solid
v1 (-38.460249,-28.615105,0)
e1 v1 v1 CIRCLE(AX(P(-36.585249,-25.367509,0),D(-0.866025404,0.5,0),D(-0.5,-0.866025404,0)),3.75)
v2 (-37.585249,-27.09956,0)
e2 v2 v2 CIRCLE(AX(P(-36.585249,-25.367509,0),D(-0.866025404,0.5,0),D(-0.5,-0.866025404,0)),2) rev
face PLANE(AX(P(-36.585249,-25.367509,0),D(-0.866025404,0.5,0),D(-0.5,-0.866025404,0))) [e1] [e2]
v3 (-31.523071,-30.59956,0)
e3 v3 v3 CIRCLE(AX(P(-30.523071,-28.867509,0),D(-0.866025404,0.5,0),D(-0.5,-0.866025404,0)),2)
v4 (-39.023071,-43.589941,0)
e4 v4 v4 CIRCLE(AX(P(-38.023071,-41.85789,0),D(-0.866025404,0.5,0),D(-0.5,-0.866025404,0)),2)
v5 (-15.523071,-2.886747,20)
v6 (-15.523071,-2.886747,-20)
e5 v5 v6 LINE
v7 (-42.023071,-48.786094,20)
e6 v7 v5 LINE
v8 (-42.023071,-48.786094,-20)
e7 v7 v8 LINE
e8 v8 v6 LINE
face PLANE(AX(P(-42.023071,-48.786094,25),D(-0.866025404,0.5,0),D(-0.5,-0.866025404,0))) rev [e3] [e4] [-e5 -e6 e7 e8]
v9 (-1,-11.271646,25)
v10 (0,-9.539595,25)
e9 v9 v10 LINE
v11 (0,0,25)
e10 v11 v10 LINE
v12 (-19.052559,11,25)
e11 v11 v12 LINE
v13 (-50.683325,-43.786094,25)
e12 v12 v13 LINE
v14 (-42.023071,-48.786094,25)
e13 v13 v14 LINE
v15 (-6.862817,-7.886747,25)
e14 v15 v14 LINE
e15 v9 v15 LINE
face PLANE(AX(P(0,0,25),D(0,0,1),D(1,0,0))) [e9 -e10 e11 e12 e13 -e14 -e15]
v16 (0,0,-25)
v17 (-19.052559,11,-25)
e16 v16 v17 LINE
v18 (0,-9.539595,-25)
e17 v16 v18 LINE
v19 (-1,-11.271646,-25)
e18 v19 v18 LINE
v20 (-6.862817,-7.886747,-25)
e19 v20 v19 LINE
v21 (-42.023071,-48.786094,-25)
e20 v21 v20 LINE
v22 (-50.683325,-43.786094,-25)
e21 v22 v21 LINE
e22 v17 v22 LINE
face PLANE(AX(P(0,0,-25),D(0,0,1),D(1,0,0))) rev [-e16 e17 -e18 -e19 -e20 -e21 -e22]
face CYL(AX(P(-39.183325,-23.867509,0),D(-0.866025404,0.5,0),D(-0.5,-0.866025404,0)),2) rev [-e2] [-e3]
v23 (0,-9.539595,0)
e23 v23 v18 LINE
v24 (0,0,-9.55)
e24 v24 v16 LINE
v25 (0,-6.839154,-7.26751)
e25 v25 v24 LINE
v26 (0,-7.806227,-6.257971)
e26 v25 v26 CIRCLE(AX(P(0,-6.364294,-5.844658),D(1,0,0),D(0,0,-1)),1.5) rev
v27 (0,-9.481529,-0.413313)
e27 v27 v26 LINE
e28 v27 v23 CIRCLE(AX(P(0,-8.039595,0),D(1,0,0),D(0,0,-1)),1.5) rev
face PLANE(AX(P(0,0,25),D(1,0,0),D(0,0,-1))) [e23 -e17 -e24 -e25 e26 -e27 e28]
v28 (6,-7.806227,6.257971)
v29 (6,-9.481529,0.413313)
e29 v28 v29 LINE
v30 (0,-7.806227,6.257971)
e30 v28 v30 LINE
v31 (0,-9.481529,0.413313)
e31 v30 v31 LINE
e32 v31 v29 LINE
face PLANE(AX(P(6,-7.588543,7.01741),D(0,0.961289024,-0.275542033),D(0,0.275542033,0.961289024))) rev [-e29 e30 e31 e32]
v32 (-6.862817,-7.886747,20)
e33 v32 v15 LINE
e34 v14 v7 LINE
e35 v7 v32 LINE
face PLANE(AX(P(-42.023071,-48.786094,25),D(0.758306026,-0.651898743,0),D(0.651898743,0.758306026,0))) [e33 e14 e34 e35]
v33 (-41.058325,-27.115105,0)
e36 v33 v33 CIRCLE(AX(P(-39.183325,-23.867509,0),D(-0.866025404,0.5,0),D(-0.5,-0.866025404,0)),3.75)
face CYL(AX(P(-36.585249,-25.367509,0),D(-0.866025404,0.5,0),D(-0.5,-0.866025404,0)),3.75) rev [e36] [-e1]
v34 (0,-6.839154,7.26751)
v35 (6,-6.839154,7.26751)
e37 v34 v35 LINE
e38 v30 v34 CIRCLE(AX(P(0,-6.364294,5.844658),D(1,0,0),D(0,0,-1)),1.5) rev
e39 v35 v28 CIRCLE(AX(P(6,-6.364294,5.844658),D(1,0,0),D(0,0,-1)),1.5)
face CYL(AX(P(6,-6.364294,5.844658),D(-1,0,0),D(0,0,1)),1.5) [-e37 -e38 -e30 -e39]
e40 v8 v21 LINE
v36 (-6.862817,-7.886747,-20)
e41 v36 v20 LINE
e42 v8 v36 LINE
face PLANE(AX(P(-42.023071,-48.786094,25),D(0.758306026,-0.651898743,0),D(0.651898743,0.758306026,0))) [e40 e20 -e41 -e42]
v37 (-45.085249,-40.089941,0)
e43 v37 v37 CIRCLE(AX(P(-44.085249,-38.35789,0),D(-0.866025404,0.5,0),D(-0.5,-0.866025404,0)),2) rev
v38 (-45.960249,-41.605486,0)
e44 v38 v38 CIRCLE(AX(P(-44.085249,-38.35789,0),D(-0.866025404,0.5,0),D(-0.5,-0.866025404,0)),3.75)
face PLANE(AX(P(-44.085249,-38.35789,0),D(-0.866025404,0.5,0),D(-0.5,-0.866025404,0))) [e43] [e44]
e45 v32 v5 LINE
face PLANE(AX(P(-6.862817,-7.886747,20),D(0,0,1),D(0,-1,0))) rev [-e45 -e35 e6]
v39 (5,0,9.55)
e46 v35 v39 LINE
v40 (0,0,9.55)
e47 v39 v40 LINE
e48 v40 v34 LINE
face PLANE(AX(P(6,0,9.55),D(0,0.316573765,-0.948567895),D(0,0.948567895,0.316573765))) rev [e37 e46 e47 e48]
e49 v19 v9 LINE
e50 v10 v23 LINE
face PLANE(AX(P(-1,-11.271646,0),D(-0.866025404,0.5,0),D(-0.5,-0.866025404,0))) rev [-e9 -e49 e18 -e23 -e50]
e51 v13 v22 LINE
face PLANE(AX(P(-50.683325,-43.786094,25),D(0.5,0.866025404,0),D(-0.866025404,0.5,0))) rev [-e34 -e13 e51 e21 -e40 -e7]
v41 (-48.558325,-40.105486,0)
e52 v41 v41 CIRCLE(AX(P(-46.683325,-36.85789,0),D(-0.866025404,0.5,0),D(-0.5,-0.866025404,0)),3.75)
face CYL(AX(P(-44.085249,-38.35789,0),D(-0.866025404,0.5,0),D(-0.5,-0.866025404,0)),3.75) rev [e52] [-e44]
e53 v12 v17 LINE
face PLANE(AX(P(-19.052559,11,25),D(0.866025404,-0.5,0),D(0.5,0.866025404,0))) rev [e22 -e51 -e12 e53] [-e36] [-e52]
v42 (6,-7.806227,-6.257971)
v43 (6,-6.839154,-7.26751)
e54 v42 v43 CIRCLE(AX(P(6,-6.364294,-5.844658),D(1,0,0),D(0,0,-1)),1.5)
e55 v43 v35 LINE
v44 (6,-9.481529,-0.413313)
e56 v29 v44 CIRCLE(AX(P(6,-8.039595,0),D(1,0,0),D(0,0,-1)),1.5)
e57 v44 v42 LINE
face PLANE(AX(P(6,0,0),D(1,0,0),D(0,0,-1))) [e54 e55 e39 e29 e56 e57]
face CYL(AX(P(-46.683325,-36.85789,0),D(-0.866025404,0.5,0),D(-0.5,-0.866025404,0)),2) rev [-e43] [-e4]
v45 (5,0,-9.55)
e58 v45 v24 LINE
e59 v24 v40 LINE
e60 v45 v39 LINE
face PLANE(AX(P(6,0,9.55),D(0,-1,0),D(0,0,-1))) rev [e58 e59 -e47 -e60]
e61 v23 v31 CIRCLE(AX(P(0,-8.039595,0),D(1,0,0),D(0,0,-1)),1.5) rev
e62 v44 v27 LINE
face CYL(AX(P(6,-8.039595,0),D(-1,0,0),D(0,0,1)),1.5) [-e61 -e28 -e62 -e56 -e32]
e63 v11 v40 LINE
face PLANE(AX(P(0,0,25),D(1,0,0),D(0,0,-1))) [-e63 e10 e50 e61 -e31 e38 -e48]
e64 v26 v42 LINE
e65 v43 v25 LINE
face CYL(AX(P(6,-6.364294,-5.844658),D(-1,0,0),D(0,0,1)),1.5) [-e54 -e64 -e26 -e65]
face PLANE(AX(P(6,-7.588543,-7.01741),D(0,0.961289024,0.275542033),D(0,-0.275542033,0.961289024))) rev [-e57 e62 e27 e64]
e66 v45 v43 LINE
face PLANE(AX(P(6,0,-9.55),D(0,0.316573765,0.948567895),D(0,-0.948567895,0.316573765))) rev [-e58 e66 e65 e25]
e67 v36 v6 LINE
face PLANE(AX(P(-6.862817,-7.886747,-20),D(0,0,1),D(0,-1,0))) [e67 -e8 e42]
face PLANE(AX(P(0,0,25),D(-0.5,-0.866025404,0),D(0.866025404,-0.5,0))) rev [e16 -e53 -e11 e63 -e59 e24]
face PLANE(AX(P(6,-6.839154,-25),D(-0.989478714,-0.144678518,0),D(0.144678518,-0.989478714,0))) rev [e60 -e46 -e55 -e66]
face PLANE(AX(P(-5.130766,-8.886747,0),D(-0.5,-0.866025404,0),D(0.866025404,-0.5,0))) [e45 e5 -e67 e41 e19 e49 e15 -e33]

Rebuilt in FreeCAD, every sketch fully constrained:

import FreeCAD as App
import Part
import Sketcher
Q = App.Units.Quantity


def edges_at(feature, points):
    """Names of the edges that pass closest to the given points."""
    edges = feature.Shape.Edges
    near = lambda p: min(range(len(edges)), key=lambda i: edges[i].distToShape(Part.Vertex(*p))[0])
    return sorted({f"Edge{near(p) + 1}" for p in points})


def add_polygon(sketch, points):
    """Adds a closed chain of lines whose ends are joined by coincident constraints."""
    first, n = sketch.GeometryCount, len(points)
    for a, b in zip(points, points[1:] + points[:1]):
        sketch.addGeometry(Part.LineSegment(App.Vector(*a, 0), App.Vector(*b, 0)), False)
    for i in range(n):
        sketch.addConstraint(Sketcher.Constraint("Coincident", first + i, 2, first + (i + 1) % n, 1))

doc = App.newDocument("Part")
body = doc.addObject("PartDesign::Body", "Body")

sketch1 = body.newObject("Sketcher::SketchObject", "Sketch")
sketch1.AttachmentSupport = (doc.getObject("YZ_Plane"), [""])
sketch1.MapMode = "FlatFace"
add_polygon(sketch1, [(0, -9.55), (0, 9.55), (-7.588543, 7.01741), (-9.6, 0), (-7.588543, -7.01741)])
sketch1.addConstraint([
    Sketcher.Constraint("Vertical", 0),
    Sketcher.Constraint("Symmetric", 0, 2, 4, 2, -1, 1),
    Sketcher.Constraint("Symmetric", 1, 2, 3, 2, -1),
    Sketcher.Constraint("PointOnObject", 2, 2, -1),
    Sketcher.Constraint("Distance", 1, Q("8 mm")),
    Sketcher.Constraint("DistanceY", 0, 1, 0, 2, Q("19.1 mm")),
    Sketcher.Constraint("Distance", 2, Q("7.3 mm")),
    Sketcher.Constraint("DistanceX", 2, 2, -1, 1, Q("9.6 mm")),
])
pad1 = body.newObject("PartDesign::Pad", "Pad")
pad1.Profile = sketch1
pad1.Length = 6
doc.recompute()

fillet = body.newObject("PartDesign::Fillet", "Fillet")
fillet.Base = (pad1, edges_at(pad1, [(3, -7.589, -7.017), (3, -9.6, 0), (3, -7.589, 7.017)]))
fillet.Radius = 1.5

sketch2 = body.newObject("Sketcher::SketchObject", "Sketch001")
sketch2.AttachmentSupport = (doc.getObject("XY_Plane"), [""])
sketch2.MapMode = "FlatFace"
add_polygon(sketch2, [(0, 0), (-19.052559, 11), (-50.683325, -43.786094), (-42.023071, -48.786094), (-14.523071, -1.154696), (0, -9.539595)])
sketch2.addConstraint([
    Sketcher.Constraint("Vertical", 5),
    Sketcher.Constraint("Coincident", 5, 2, -1, 1),
    Sketcher.Constraint("Perpendicular", 0, 1),
    Sketcher.Constraint("Perpendicular", 1, 2),
    Sketcher.Constraint("Perpendicular", 2, 3),
    Sketcher.Constraint("Perpendicular", 3, 4),
    Sketcher.Constraint("Angle", 0, Q("150 deg")),
    Sketcher.Constraint("Distance", 0, Q("22 mm")),
    Sketcher.Constraint("Distance", 2, Q("10 mm")),
    Sketcher.Constraint("Distance", 3, Q("55 mm")),
    Sketcher.Constraint("DistanceY", 4, 2, 3, 2, Q("8.384899 mm")),
])
pad2 = body.newObject("PartDesign::Pad", "Pad001")
pad2.Profile = sketch2
pad2.Type = "TwoLengths"
pad2.Length = 25
pad2.Length2 = 25

sketch3 = body.newObject("Sketcher::SketchObject", "Sketch002")
sketch3.AttachmentSupport = (doc.getObject("XY_Plane"), [""])
sketch3.MapMode = "FlatFace"
sketch3.AttachmentOffset = App.Placement(App.Vector(0, 0, 25), App.Rotation())
add_polygon(sketch3, [(6, -6.839154), (6, 0), (5, 0)])
sketch3.addConstraint([
    Sketcher.Constraint("Vertical", 0),
    Sketcher.Constraint("Horizontal", 1),
    Sketcher.Constraint("PointOnObject", 0, 2, -1),
    Sketcher.Constraint("DistanceX", 1, 2, 1, 1, Q("1 mm")),
    Sketcher.Constraint("DistanceX", -1, 1, 0, 2, Q("6 mm")),
    Sketcher.Constraint("DistanceY", 0, 1, 0, 2, Q("6.839154 mm")),
])
pocket1 = body.newObject("PartDesign::Pocket", "Pocket")
pocket1.Profile = sketch3
pocket1.Type = "ThroughAll"

sketch4 = body.newObject("Sketcher::SketchObject", "Sketch003")
sketch4.Placement = App.Placement(App.Vector(-4.130766, -7.154696, 0), App.Rotation(App.Vector(0.866025404, -0.5, 0), App.Vector(0, 0, 1), App.Vector(-0.5, -0.866025404, 0), "ZXY"))
add_polygon(sketch4, [(-12, 25), (-12, -25), (4.769798, -25), (4.769798, 25)])
sketch4.addConstraint([
    Sketcher.Constraint("Vertical", 0),
    Sketcher.Constraint("Horizontal", 1),
    Sketcher.Constraint("Vertical", 2),
    Sketcher.Constraint("Horizontal", 3),
    Sketcher.Constraint("DistanceY", 0, 2, 0, 1, Q("50 mm")),
    Sketcher.Constraint("DistanceX", 0, 2, -1, 1, Q("12 mm")),
    Sketcher.Constraint("DistanceY", 0, 2, -1, 1, Q("25 mm")),
    Sketcher.Constraint("DistanceX", 1, 1, 1, 2, Q("16.769798 mm")),
])
pad3 = body.newObject("PartDesign::Pad", "Pad002")
pad3.Profile = sketch4
pad3.Length = 2

sketch5 = body.newObject("Sketcher::SketchObject", "Sketch004")
sketch5.Placement = App.Placement(App.Vector(-19.052559, 11, 0), App.Rotation(App.Vector(0, 0, 1), App.Vector(0.5, 0.866025404, 0), App.Vector(-0.866025404, 0.5, 0), "ZXY"))
sketch5.addGeometry([
    Part.Circle(App.Vector(0, -40.261532, 0), App.Vector(0, 0, 1), 2),
    Part.Circle(App.Vector(0, -55.261532, 0), App.Vector(0, 0, 1), 2),
], False)
sketch5.addConstraint([
    Sketcher.Constraint("Equal", 0, 1),
    Sketcher.Constraint("PointOnObject", 0, 3, -2),
    Sketcher.Constraint("PointOnObject", 1, 3, -2),
    Sketcher.Constraint("Diameter", 0, Q("4 mm")),
    Sketcher.Constraint("DistanceY", 1, 3, 0, 3, Q("15 mm")),
    Sketcher.Constraint("DistanceY", 0, 3, -1, 1, Q("40.261532 mm")),
])
doc.recompute()
hole = body.newObject("PartDesign::Hole", "Hole")
hole.Profile = sketch5
hole.ThreadType = "None"
hole.Diameter = 4
hole.DepthType = "ThroughAll"

sketch6 = body.newObject("Sketcher::SketchObject", "Sketch005")
sketch6.Placement = App.Placement(App.Vector(-19.052559, 11, 0), App.Rotation(App.Vector(-0.5, -0.866025404, 0), App.Vector(0, 0, 1), App.Vector(-0.866025404, 0.5, 0), "ZXY"))
sketch6.addGeometry([
    Part.Circle(App.Vector(40.261532, 0, 0), App.Vector(0, 0, 1), 3.75),
    Part.Circle(App.Vector(55.261532, 0, 0), App.Vector(0, 0, 1), 3.75),
], False)
sketch6.addConstraint([
    Sketcher.Constraint("Equal", 0, 1),
    Sketcher.Constraint("PointOnObject", 0, 3, -1),
    Sketcher.Constraint("PointOnObject", 1, 3, -1),
    Sketcher.Constraint("Diameter", 0, Q("7.5 mm")),
    Sketcher.Constraint("DistanceX", 0, 3, 1, 3, Q("15 mm")),
    Sketcher.Constraint("DistanceX", -1, 1, 0, 3, Q("40.261532 mm")),
])
pocket2 = body.newObject("PartDesign::Pocket", "Pocket001")
pocket2.Profile = sketch6
pocket2.Length = 3

sketch7 = body.newObject("Sketcher::SketchObject", "Sketch006")
sketch7.Placement = App.Placement(App.Vector(-10.392305, 6, 0), App.Rotation(App.Vector(0, 0, -1), App.Vector(0.5, 0.866025404, 0), App.Vector(0.866025404, -0.5, 0), "ZXY"))
add_polygon(sketch7, [(-25, -10.261532), (-25, -63.261532), (-20, -63.261532), (-20, -10.261532)])
sketch7.addConstraint([
    Sketcher.Constraint("Vertical", 0),
    Sketcher.Constraint("Horizontal", 1),
    Sketcher.Constraint("Vertical", 2),
    Sketcher.Constraint("Horizontal", 3),
    Sketcher.Constraint("DistanceX", 1, 1, 1, 2, Q("5 mm")),
    Sketcher.Constraint("DistanceY", 0, 2, 0, 1, Q("53 mm")),
    Sketcher.Constraint("DistanceX", 0, 2, -1, 1, Q("25 mm")),
    Sketcher.Constraint("DistanceY", 0, 2, -1, 1, Q("63.261532 mm")),
])
pad4 = body.newObject("PartDesign::Pad", "Pad003")
pad4.Profile = sketch7
pad4.Length = 10
doc.recompute()

mirrored = body.newObject("PartDesign::Mirrored", "Mirrored")
mirrored.Originals = [pad4]
mirrored.MirrorPlane = (doc.getObject("XY_Plane"), [""])
body.Tip = mirrored

sketch8 = body.newObject("Sketcher::SketchObject", "Sketch007")
sketch8.AttachmentSupport = (doc.getObject("XY_Plane"), [""])
sketch8.MapMode = "FlatFace"
sketch8.AttachmentOffset = App.Placement(App.Vector(0, 0, -20), App.Rotation())
add_polygon(sketch8, [(-6.862817, -7.886747), (-42.023071, -48.786094), (-33.362817, -53.786094)])
sketch8.addConstraint([
    Sketcher.Constraint("Perpendicular", 1, 2),
    Sketcher.Constraint("Angle", 1, Q("-30 deg")),
    Sketcher.Constraint("Distance", 1, Q("10 mm")),
    Sketcher.Constraint("Distance", 2, Q("53 mm")),
    Sketcher.Constraint("DistanceX", 0, 2, -1, 1, Q("42.023071 mm")),
    Sketcher.Constraint("DistanceY", 0, 2, -1, 1, Q("48.786094 mm")),
])
pocket3 = body.newObject("PartDesign::Pocket", "Pocket002")
pocket3.Profile = sketch8
pocket3.Type = "ThroughAll"
pocket3.Midplane = True

doc.recompute()
